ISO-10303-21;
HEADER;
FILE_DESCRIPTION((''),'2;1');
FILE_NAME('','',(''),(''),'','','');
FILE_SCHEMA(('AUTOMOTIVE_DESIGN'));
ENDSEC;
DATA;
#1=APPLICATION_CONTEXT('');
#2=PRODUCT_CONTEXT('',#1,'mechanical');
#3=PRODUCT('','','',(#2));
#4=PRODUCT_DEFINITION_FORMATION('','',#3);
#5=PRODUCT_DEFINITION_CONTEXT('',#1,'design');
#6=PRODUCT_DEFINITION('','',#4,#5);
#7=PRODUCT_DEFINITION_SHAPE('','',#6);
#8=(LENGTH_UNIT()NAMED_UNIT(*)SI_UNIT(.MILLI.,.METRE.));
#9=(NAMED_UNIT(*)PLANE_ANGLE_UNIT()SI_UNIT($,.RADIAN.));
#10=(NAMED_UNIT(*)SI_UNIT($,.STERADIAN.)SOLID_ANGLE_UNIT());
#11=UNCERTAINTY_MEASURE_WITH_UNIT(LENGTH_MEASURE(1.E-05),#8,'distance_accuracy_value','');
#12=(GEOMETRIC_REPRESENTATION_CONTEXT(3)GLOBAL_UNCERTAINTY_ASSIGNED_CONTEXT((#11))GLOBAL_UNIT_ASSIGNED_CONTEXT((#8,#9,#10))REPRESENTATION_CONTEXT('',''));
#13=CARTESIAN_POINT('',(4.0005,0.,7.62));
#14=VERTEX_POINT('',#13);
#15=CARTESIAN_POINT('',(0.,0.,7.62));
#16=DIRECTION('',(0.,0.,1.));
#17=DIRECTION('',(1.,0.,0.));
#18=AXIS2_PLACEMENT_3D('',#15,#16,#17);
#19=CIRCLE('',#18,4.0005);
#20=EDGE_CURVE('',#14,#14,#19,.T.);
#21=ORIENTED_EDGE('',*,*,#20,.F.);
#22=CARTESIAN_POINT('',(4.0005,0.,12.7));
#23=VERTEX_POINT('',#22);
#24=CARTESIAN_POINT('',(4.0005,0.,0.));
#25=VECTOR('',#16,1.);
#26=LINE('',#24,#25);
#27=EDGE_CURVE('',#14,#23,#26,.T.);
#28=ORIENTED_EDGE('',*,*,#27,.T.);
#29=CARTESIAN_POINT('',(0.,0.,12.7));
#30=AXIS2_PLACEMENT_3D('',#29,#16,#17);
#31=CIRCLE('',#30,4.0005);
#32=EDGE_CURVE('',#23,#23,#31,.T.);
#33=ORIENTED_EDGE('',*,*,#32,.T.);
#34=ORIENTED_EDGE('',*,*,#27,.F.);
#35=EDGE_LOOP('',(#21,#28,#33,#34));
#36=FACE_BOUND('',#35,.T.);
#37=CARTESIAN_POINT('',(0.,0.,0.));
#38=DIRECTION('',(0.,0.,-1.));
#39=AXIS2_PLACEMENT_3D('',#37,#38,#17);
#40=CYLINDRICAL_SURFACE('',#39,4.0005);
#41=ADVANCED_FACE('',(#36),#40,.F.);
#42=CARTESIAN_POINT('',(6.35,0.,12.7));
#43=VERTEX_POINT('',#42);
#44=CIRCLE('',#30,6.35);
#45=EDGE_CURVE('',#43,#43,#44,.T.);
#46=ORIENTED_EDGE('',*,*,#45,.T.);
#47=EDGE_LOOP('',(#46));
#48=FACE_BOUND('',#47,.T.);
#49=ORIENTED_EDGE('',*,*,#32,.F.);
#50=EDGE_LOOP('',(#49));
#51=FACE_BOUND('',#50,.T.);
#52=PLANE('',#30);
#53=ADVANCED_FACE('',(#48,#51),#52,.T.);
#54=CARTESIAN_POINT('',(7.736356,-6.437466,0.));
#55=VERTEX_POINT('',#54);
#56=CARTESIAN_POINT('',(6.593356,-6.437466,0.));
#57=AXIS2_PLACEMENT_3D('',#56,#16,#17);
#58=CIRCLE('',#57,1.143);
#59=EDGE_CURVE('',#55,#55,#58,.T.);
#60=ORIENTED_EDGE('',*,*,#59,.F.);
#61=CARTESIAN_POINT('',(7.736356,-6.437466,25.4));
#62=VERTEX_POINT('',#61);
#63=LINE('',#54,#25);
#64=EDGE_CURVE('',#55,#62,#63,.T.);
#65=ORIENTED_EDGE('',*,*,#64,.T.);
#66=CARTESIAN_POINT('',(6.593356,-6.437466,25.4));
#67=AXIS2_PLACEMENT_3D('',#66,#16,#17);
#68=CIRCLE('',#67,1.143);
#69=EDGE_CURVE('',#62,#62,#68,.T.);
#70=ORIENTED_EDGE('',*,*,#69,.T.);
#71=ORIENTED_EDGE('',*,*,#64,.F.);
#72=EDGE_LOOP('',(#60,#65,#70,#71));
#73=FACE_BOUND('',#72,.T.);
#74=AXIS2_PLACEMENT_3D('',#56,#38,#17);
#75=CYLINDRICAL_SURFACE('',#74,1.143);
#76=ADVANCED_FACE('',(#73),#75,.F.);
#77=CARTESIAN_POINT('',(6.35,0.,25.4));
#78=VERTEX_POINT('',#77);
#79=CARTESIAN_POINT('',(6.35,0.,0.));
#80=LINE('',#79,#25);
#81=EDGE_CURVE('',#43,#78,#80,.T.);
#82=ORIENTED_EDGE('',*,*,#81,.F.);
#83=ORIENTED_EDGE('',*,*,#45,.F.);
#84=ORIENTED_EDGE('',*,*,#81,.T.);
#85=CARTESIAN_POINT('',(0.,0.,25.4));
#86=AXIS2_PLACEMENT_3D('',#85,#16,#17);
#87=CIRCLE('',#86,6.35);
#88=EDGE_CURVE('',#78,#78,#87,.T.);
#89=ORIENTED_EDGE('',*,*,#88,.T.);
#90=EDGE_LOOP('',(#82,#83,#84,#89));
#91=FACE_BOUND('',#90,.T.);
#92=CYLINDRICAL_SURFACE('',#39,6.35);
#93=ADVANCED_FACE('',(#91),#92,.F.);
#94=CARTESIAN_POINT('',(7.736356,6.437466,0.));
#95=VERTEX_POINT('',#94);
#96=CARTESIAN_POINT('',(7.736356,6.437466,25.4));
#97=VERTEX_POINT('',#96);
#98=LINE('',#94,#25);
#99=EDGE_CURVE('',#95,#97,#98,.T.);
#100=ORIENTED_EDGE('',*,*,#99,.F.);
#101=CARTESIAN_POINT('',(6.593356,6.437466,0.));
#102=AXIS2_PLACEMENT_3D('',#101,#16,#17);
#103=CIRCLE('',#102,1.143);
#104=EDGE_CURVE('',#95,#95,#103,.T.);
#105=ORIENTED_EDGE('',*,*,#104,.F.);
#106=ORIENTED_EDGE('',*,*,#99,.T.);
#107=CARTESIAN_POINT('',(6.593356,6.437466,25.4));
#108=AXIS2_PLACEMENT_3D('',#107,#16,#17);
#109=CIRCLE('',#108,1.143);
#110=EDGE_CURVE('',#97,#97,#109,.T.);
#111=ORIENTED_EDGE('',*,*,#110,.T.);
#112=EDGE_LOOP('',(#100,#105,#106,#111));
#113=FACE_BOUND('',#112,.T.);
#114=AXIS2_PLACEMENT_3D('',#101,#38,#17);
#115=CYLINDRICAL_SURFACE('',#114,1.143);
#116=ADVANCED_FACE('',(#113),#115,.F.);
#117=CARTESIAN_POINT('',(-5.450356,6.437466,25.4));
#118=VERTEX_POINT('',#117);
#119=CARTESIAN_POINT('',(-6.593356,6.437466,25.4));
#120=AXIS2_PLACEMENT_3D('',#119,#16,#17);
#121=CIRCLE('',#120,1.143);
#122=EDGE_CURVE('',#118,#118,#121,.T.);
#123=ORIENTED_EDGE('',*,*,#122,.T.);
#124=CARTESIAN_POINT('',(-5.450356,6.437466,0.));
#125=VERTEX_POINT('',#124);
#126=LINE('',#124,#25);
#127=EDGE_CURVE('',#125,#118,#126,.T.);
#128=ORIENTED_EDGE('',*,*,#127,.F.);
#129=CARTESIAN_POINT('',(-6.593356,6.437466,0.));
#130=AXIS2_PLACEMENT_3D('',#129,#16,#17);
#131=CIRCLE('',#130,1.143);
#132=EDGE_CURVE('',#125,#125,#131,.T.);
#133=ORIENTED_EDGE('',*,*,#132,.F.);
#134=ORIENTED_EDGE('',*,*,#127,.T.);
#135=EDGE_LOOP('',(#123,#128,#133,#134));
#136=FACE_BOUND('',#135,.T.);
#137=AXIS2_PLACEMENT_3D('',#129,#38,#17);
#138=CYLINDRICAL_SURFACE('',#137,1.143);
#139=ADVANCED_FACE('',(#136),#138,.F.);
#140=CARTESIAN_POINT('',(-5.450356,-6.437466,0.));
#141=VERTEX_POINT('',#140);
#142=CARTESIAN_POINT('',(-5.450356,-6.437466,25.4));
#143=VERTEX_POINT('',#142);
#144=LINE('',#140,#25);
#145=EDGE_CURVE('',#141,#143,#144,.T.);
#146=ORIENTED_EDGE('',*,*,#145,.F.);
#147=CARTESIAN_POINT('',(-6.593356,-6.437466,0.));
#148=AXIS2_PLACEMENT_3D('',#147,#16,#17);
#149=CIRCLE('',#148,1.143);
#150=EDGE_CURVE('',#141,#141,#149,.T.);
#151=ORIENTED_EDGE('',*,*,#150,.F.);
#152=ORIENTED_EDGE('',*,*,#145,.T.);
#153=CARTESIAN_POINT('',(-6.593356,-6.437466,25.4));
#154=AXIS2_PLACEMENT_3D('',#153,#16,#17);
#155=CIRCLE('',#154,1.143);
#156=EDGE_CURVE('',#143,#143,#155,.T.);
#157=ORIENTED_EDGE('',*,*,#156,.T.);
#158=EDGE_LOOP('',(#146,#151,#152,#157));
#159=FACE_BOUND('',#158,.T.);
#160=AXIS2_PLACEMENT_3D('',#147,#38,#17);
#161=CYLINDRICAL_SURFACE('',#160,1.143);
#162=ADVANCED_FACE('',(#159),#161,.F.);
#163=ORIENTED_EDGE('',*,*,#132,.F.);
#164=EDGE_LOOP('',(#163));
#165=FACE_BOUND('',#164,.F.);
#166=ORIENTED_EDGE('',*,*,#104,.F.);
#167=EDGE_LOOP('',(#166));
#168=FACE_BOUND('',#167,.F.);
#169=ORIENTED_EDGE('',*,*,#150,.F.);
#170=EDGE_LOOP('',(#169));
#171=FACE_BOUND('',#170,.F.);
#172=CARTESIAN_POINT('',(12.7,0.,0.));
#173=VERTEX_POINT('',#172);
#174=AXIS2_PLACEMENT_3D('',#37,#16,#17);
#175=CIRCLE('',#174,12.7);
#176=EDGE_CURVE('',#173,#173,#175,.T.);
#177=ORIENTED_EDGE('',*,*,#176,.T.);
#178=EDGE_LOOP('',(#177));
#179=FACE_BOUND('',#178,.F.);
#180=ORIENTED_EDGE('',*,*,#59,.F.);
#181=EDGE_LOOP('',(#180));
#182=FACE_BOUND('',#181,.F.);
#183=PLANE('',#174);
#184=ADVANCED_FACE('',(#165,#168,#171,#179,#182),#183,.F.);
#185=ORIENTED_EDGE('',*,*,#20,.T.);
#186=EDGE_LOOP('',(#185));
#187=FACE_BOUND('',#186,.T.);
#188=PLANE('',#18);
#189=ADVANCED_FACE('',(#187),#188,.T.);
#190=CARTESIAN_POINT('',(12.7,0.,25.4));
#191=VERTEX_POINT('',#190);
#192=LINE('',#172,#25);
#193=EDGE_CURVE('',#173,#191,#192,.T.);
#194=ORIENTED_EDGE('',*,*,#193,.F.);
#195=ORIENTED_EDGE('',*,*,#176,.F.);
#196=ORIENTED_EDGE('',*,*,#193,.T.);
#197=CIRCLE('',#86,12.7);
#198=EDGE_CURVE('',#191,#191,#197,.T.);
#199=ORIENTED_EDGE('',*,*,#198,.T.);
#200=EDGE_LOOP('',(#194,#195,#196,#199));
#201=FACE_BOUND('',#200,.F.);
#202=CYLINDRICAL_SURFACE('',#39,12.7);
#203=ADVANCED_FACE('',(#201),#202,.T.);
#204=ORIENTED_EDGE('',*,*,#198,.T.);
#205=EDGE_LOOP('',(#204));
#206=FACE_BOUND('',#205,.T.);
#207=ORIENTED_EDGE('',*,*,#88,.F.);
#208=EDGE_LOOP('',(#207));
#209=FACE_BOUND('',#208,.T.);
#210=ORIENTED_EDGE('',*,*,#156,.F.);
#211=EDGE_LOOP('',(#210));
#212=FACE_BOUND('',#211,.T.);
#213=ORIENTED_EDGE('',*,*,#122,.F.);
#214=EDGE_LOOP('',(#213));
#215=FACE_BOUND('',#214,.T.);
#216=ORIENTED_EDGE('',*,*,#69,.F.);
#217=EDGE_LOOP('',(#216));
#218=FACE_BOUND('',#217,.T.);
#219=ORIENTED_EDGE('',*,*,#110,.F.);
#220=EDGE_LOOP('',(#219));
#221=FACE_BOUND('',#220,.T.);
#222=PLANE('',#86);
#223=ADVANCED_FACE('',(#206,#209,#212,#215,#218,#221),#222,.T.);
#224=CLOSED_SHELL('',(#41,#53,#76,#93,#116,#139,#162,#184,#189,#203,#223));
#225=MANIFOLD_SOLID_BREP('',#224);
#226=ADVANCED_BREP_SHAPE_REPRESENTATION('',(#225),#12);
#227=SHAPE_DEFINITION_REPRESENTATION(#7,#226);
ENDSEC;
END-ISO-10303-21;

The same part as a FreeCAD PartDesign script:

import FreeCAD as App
import Part
import Sketcher
Q = App.Units.Quantity

doc = App.newDocument("Part")
body = doc.addObject("PartDesign::Body", "Body")

# Sketch on XY plane
sketch1 = doc.addObject("Sketcher::SketchObject", "Sketch")
body.addObject(sketch1)
sketch1.AttachmentSupport = (doc.XY_Plane, [""])
sketch1.MapMode = "FlatFace"
sketch1.addGeometry([
    Part.Circle(App.Vector(0, 0, 0), App.Vector(0, 0, 1), 12.7),  # 0
    Part.Circle(App.Vector(-6.6, -6.4, 0), App.Vector(0, 0, 1), 1.1),  # 1
    Part.Circle(App.Vector(6.6, -6.4, 0), App.Vector(0, 0, 1), 1.1),  # 2
    Part.Circle(App.Vector(-6.6, 6.4, 0), App.Vector(0, 0, 1), 1.1),  # 3
    Part.Circle(App.Vector(0, 0, 0), App.Vector(0, 0, 1), 6.3),  # 4
    Part.Circle(App.Vector(6.6, 6.4, 0), App.Vector(0, 0, 1), 1.1),  # 5
], False)
sketch1.addConstraint([
    Sketcher.Constraint("Coincident", 0, 3, -1, 1),
    Sketcher.Constraint("Coincident", 4, 3, -1, 1),
    Sketcher.Constraint("Equal", 1, 2),
    Sketcher.Constraint("Equal", 2, 3),
    Sketcher.Constraint("Equal", 3, 5),
    Sketcher.Constraint("Symmetric", 2, 3, 3, 3, -1, 1),
    Sketcher.Constraint("Symmetric", 1, 3, 5, 3, -1, 1),
    Sketcher.Constraint("Symmetric", 1, 3, 2, 3, -2),
    Sketcher.Constraint("Diameter", 0, Q("1 in")),
    Sketcher.Constraint("Diameter", 4, Q("0.5 in")),
    Sketcher.Constraint("Diameter", 1, Q("0.09 in")),
    Sketcher.Constraint("DistanceY", 1, 3, 3, 3, 12.874932),
    Sketcher.Constraint("DistanceX", 1, 3, -1, 1, 6.593356),
])
pad1 = doc.addObject("PartDesign::Pad", "Pad")
body.addObject(pad1)
pad1.Profile = sketch1
pad1.Length = Q("1 in")

# Sketch on XY plane
sketch2 = doc.addObject("Sketcher::SketchObject", "Sketch001")
body.addObject(sketch2)
sketch2.AttachmentSupport = (doc.XY_Plane, [""])
sketch2.MapMode = "FlatFace"
sketch2.addGeometry([
    Part.Circle(App.Vector(0, 0, 0), App.Vector(0, 0, 1), 6.3),
    Part.Circle(App.Vector(0, 0, 0), App.Vector(0, 0, 1), 4),
], False)
sketch2.addConstraint([
    Sketcher.Constraint("Coincident", 0, 3, -1, 1),
    Sketcher.Constraint("Coincident", 1, 3, -1, 1),
    Sketcher.Constraint("Diameter", 0, Q("0.5 in")),
    Sketcher.Constraint("Diameter", 1, Q("0.315 in")),
])
pad2 = doc.addObject("PartDesign::Pad", "Pad001")
body.addObject(pad2)
pad2.Profile = sketch2
pad2.Length = Q("0.5 in")

# Sketch on XY plane
sketch3 = doc.addObject("Sketcher::SketchObject", "Sketch002")
body.addObject(sketch3)
sketch3.AttachmentSupport = (doc.XY_Plane, [""])
sketch3.MapMode = "FlatFace"
sketch3.addGeometry(Part.Circle(App.Vector(0, 0, 0), App.Vector(0, 0, 1), 4), False)
sketch3.addConstraint([
    Sketcher.Constraint("Coincident", 0, 3, -1, 1),
    Sketcher.Constraint("Diameter", 0, Q("0.315 in")),
])
pad3 = doc.addObject("PartDesign::Pad", "Pad002")
body.addObject(pad3)
pad3.Profile = sketch3
pad3.Length = Q("0.3 in")

doc.recompute()
